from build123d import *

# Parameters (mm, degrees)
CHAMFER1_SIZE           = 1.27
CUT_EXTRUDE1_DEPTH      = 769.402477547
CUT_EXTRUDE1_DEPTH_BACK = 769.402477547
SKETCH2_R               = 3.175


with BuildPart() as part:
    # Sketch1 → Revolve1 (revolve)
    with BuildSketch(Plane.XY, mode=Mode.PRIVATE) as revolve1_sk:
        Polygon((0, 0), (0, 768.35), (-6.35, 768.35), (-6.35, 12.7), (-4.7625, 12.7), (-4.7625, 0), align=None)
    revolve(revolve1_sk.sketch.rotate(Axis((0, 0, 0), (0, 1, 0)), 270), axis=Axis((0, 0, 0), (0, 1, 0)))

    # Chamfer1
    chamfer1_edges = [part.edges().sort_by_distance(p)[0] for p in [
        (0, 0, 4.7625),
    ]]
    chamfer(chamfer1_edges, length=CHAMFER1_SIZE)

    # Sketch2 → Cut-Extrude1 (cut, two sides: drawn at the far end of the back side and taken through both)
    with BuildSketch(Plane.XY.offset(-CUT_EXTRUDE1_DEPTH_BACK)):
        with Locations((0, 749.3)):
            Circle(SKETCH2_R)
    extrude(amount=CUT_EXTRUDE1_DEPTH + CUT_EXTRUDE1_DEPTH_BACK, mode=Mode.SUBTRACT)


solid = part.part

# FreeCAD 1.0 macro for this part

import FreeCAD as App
import Part
import Sketcher
from FreeCAD import Vector
Q = App.Units.Quantity


def edges_at(feature, points):
    """Names of the edges that pass closest to the given points."""
    edges = feature.Shape.Edges
    near = lambda p: min(range(len(edges)), key=lambda i: edges[i].distToShape(Part.Vertex(*p))[0])
    return sorted({f"Edge{near(p) + 1}" for p in points})


def add_polygon(sketch, points):
    """Adds a closed chain of lines whose ends are joined by coincident constraints."""
    first, n = sketch.GeometryCount, len(points)
    for a, b in zip(points, points[1:] + points[:1]):
        sketch.addGeometry(Part.LineSegment(App.Vector(*a, 0), App.Vector(*b, 0)), False)
    for i in range(n):
        sketch.addConstraint(Sketcher.Constraint("Coincident", first + i, 2, first + (i + 1) % n, 1))

doc = App.newDocument("Part")
body = doc.addObject("PartDesign::Body", "Body")

sketch1 = body.newObject("Sketcher::SketchObject", "Sketch")
sketch1.AttachmentSupport = (doc.getObject("XY_Plane"), [""])
sketch1.MapMode = "FlatFace"
add_polygon(sketch1, [(0, 0), (0, 768.35), (-6.35, 768.35), (-6.35, 12.7), (-4.7625, 12.7), (-4.7625, 0)])
sketch1.addConstraint([
    Sketcher.Constraint("Vertical", 0),
    Sketcher.Constraint("Horizontal", 1),
    Sketcher.Constraint("Vertical", 2),
    Sketcher.Constraint("Horizontal", 3),
    Sketcher.Constraint("Vertical", 4),
    Sketcher.Constraint("Horizontal", 5),
    Sketcher.Constraint("Coincident", 5, 2, -1, 1),
    Sketcher.Constraint("DistanceY", 4, 2, 4, 1, Q("0.5 in")),
    Sketcher.Constraint("DistanceX", 1, 2, 1, 1, Q("0.25 in")),
    Sketcher.Constraint("DistanceY", 0, 1, 0, 2, Q("30.25 in")),
    Sketcher.Constraint("DistanceX", 3, 1, 3, 2, Q("0.0625 in")),
])
revolution = body.newObject("PartDesign::Revolution", "Revolution")
revolution.Profile = sketch1
revolution.ReferenceAxis = (sketch1, ["V_Axis"])
revolution.Angle = 360
doc.recompute()

chamfer = body.newObject("PartDesign::Chamfer", "Chamfer")
chamfer.Base = (revolution, edges_at(revolution, [(0, 0, 4.763)]))
chamfer.Size = Q("0.05 in")

sketch2 = body.newObject("Sketcher::SketchObject", "Sketch001")
sketch2.AttachmentSupport = (doc.getObject("XY_Plane"), [""])
sketch2.MapMode = "FlatFace"
sketch2.addGeometry(Part.Circle(Vector(0, 749.3, 0), Vector(0, 0, 1), 3.175), False)
sketch2.addConstraint([
    Sketcher.Constraint("PointOnObject", 0, 3, -2),
    Sketcher.Constraint("Diameter", 0, Q("0.25 in")),
    Sketcher.Constraint("DistanceY", -1, 1, 0, 3, Q("29.5 in")),
])
pocket1 = body.newObject("PartDesign::Pocket", "Pocket")
pocket1.Profile = sketch2
pocket1.Type = "ThroughAll"
pocket1.Midplane = True

doc.recompute()
